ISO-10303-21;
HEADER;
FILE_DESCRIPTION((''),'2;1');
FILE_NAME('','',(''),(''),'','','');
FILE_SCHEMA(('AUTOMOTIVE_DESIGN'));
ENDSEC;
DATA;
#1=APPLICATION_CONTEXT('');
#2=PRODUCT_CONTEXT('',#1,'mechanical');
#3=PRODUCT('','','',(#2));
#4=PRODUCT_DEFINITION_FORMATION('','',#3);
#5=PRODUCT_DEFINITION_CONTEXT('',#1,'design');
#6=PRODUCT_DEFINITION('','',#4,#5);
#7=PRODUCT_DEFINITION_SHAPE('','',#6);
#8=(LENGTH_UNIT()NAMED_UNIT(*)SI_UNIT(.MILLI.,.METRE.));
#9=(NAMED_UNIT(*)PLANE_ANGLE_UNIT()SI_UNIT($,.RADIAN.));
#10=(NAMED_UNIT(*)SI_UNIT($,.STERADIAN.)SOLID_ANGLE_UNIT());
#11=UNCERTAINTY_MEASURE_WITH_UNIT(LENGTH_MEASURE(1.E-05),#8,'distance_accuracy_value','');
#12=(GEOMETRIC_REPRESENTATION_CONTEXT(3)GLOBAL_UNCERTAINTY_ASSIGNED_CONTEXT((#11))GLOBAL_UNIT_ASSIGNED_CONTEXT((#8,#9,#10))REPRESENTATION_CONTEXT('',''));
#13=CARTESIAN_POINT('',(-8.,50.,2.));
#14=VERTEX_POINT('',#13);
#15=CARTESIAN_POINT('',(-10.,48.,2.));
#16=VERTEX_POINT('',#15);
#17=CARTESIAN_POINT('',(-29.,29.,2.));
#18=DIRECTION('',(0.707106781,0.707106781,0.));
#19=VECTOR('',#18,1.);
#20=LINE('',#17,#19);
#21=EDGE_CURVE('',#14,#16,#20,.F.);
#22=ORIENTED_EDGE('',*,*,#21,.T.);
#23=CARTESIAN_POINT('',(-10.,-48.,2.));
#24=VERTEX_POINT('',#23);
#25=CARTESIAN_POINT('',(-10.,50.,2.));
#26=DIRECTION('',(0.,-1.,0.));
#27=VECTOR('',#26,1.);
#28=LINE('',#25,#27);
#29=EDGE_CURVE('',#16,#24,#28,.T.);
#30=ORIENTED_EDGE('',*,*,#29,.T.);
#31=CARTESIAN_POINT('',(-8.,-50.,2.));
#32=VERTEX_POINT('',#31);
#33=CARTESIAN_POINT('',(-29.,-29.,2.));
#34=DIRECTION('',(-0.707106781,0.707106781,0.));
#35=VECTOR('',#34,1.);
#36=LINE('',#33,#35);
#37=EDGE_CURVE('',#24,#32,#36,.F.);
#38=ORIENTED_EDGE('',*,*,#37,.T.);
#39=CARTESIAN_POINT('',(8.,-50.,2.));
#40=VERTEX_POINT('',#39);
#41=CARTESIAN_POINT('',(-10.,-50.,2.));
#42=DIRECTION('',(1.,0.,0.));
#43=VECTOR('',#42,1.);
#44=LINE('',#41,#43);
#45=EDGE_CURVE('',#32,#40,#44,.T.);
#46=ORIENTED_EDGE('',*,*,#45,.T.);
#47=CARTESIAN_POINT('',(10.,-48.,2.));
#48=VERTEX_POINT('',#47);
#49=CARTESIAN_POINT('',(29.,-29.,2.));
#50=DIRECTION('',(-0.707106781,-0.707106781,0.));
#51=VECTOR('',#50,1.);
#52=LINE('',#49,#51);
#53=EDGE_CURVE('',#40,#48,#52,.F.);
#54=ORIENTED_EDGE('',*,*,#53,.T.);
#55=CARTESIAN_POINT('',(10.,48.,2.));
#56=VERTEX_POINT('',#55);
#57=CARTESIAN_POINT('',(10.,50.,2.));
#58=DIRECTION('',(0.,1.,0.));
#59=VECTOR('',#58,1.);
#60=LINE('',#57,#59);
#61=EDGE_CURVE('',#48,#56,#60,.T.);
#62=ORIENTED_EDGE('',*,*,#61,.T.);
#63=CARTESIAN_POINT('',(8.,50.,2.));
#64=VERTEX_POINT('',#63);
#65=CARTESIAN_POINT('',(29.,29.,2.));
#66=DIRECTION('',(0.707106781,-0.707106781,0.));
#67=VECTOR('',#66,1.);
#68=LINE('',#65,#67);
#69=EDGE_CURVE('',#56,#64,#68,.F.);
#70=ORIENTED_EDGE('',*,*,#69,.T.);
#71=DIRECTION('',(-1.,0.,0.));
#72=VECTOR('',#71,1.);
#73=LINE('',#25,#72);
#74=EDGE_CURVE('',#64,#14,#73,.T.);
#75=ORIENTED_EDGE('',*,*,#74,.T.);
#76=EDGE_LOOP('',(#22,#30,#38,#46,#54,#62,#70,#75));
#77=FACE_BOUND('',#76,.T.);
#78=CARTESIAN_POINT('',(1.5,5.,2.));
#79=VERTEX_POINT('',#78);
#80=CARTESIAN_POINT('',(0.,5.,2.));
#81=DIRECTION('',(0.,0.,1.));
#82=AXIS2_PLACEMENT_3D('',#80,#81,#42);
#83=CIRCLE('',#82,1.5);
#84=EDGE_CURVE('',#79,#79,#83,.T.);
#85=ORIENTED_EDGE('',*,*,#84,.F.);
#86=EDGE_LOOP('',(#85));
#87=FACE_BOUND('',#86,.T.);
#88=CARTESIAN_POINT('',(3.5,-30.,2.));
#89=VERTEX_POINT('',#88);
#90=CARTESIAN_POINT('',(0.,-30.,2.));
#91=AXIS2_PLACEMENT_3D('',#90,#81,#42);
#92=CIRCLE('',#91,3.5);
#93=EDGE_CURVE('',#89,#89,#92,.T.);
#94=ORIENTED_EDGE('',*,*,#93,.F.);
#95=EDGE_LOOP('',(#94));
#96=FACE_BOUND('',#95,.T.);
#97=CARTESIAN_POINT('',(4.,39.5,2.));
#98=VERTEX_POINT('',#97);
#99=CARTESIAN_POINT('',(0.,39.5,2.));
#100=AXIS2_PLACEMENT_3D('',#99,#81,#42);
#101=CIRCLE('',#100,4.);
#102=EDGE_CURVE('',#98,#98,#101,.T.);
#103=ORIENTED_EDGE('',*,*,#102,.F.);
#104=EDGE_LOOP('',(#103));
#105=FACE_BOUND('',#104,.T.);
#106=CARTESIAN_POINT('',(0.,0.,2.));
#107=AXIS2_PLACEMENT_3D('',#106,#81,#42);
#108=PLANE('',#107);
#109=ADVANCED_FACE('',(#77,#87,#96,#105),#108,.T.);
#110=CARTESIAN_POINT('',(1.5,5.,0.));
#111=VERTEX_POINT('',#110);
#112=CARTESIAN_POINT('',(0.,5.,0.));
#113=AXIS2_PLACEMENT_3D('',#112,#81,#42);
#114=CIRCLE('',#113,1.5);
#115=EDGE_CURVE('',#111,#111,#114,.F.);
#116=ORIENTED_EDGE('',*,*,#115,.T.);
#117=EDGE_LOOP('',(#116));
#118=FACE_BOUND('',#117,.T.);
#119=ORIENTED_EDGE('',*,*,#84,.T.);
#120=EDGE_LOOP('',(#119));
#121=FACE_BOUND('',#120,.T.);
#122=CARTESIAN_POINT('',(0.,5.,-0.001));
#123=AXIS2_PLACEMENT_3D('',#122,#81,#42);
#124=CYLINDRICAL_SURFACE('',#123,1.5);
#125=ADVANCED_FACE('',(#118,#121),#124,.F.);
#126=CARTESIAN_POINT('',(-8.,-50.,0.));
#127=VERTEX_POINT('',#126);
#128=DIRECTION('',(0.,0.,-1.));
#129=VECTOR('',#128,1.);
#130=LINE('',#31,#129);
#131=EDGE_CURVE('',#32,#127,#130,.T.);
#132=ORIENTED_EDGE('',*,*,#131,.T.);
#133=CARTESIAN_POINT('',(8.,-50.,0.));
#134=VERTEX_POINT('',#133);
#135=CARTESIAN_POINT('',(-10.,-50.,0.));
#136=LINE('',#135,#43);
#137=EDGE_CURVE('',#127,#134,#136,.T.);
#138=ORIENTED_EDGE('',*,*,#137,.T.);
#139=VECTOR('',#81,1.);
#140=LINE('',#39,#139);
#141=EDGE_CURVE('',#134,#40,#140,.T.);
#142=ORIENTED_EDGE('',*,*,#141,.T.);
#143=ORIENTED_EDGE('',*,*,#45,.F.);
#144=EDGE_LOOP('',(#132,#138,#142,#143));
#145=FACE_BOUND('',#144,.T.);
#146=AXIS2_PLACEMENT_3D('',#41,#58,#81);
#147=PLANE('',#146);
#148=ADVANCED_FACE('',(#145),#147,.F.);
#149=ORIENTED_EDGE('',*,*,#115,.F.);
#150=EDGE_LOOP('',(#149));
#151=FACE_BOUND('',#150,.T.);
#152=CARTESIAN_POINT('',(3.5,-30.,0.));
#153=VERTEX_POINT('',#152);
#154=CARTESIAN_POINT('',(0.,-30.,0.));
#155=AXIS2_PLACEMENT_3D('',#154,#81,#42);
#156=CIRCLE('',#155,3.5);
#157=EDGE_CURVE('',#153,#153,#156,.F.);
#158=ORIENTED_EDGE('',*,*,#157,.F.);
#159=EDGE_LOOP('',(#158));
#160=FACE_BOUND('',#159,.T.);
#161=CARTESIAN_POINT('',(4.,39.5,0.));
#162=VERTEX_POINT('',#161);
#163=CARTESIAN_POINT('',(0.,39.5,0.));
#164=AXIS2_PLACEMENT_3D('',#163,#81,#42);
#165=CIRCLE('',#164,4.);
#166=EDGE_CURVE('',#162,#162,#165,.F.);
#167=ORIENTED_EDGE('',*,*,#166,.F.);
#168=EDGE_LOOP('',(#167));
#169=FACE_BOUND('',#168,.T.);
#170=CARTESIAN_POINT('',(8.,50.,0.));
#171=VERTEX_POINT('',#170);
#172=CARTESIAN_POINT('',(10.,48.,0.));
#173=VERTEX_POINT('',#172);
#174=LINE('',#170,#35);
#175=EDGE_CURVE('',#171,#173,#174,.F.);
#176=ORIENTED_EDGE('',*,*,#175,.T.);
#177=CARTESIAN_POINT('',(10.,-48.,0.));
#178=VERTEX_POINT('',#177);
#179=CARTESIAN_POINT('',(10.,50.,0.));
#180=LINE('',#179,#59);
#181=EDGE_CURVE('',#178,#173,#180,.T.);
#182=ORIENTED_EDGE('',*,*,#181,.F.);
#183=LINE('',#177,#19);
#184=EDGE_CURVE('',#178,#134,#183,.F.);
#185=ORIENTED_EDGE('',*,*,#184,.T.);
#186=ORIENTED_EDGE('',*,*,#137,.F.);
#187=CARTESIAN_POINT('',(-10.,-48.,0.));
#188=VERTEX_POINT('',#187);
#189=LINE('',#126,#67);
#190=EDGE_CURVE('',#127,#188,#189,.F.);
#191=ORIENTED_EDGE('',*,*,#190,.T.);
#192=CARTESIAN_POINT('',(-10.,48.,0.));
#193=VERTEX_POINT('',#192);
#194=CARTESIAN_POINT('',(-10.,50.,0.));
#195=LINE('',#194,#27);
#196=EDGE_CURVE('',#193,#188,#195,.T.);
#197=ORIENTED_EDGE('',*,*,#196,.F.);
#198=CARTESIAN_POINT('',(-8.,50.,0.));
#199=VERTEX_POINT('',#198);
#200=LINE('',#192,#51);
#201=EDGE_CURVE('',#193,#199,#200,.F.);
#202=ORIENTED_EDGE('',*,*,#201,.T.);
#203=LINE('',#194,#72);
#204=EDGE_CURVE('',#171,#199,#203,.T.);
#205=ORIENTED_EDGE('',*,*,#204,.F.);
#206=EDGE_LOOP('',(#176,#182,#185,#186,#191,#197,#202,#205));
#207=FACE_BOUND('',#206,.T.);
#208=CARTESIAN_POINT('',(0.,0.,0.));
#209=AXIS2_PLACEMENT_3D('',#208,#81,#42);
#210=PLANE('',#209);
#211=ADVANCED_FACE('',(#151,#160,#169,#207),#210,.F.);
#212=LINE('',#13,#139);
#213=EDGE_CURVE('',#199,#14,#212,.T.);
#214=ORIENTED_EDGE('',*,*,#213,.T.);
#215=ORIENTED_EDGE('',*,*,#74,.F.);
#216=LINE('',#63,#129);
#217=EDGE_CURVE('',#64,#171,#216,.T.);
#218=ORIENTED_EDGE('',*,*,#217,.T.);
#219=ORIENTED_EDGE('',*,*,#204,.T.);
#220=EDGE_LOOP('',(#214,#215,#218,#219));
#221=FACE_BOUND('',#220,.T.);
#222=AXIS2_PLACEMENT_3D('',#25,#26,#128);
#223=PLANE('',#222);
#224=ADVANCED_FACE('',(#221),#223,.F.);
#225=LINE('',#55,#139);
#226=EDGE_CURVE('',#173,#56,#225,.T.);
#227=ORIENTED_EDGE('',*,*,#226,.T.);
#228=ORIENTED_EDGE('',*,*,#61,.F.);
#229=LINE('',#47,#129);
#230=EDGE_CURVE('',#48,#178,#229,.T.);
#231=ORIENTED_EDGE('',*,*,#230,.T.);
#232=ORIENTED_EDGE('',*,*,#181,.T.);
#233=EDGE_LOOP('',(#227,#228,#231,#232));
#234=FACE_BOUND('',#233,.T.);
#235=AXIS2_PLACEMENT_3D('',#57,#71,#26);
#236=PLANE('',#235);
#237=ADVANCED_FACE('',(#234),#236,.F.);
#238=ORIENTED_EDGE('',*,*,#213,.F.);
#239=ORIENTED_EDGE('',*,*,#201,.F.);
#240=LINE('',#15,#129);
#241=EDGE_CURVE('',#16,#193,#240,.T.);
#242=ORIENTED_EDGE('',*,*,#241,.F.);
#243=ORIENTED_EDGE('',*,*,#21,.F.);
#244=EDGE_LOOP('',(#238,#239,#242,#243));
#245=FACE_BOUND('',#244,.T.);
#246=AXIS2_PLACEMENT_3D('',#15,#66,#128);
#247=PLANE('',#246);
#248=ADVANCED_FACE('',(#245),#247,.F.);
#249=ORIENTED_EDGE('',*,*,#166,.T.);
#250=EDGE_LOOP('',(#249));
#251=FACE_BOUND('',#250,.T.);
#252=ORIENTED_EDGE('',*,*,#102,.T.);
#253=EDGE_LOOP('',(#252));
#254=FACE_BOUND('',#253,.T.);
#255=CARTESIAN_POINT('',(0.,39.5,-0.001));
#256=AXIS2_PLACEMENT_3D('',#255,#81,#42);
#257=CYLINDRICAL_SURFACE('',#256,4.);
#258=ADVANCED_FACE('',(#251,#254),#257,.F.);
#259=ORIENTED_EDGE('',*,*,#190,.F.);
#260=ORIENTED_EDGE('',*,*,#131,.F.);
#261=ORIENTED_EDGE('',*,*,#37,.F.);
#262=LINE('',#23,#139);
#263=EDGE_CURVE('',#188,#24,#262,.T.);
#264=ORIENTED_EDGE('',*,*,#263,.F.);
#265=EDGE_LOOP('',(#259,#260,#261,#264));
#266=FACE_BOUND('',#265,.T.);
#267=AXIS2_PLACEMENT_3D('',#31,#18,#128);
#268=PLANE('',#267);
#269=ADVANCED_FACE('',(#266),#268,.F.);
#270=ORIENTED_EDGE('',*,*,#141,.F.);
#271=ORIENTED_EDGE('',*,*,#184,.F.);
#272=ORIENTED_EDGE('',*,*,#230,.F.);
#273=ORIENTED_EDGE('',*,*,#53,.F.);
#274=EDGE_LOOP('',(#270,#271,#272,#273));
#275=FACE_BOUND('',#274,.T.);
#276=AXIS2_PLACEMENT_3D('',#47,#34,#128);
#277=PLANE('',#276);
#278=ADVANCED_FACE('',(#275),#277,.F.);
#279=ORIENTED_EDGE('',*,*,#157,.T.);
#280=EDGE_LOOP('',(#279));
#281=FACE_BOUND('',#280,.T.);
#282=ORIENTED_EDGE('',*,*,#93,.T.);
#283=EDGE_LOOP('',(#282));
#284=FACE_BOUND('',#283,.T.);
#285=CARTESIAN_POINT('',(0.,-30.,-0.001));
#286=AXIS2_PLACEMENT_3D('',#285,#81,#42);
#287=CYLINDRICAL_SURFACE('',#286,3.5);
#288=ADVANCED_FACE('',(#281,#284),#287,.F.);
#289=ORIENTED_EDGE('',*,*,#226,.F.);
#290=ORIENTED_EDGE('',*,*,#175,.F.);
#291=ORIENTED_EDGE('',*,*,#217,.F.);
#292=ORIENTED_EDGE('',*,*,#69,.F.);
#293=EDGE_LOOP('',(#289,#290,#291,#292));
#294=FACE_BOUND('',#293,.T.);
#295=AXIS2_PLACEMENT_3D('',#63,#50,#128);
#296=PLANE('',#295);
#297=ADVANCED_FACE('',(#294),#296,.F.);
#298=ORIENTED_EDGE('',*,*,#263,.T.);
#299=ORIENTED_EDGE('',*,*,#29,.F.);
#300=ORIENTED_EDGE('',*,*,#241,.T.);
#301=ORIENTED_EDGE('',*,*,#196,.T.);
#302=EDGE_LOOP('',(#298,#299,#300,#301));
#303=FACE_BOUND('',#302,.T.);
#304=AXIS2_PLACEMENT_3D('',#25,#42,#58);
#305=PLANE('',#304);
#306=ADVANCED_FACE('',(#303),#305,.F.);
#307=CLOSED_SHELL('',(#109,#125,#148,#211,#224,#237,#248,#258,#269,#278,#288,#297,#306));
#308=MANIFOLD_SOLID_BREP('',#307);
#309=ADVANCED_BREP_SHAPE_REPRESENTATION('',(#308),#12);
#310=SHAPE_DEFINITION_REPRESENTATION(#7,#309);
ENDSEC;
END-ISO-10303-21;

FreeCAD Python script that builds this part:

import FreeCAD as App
import Part
import Sketcher
from FreeCAD import Vector
Q = App.Units.Quantity


def edges_at(feature, points):
    """Names of the edges that pass closest to the given points."""
    edges = feature.Shape.Edges
    near = lambda p: min(range(len(edges)), key=lambda i: edges[i].distToShape(Part.Vertex(*p))[0])
    return sorted({f"Edge{near(p) + 1}" for p in points})

doc = App.newDocument("Part")
body = doc.addObject("PartDesign::Body", "Body")

# Sketch on XY plane
sketch1 = body.newObject("Sketcher::SketchObject", "Sketch")
sketch1.AttachmentSupport = (doc.getObject("XY_Plane"), [""])
sketch1.MapMode = "FlatFace"
sketch1.addGeometry(Part.LineSegment(Vector(-10, 50, 0), Vector(-10, -50, 0)), False)
sketch1.addGeometry(Part.LineSegment(Vector(-10, -50, 0), Vector(10, -50, 0)), False)
sketch1.addGeometry(Part.LineSegment(Vector(10, -50, 0), Vector(10, 50, 0)), False)
sketch1.addGeometry(Part.LineSegment(Vector(10, 50, 0), Vector(-10, 50, 0)), False)
sketch1.addConstraint(Sketcher.Constraint("Coincident", 0, 2, 1, 1))
sketch1.addConstraint(Sketcher.Constraint("Coincident", 1, 2, 2, 1))
sketch1.addConstraint(Sketcher.Constraint("Coincident", 2, 2, 3, 1))
sketch1.addConstraint(Sketcher.Constraint("Coincident", 3, 2, 0, 1))
sketch1.addConstraint(Sketcher.Constraint("Vertical", 0))
sketch1.addConstraint(Sketcher.Constraint("Horizontal", 1))
sketch1.addConstraint(Sketcher.Constraint("Vertical", 2))
sketch1.addConstraint(Sketcher.Constraint("Horizontal", 3))
sketch1.addConstraint(Sketcher.Constraint("Symmetric", 0, 2, 2, 2, -1, 1))
sketch1.addConstraint(Sketcher.Constraint("DistanceX", 1, 1, 1, 2, Q("20 mm")))
sketch1.addConstraint(Sketcher.Constraint("DistanceY", 0, 2, 0, 1, Q("100 mm")))
pad1 = body.newObject("PartDesign::Pad", "Pad")
pad1.Profile = sketch1
pad1.Length = 2

# Sketch on XY plane
sketch2 = body.newObject("Sketcher::SketchObject", "Sketch001")
sketch2.AttachmentSupport = (doc.getObject("XY_Plane"), [""])
sketch2.MapMode = "FlatFace"
sketch2.AttachmentOffset = App.Placement(Vector(0, 0, 2), App.Rotation())
sketch2.addGeometry(Part.Circle(Vector(0, 39.5, 0), Vector(0, 0, 1), 4), False)
sketch2.addConstraint(Sketcher.Constraint("PointOnObject", 0, 3, -2))
sketch2.addConstraint(Sketcher.Constraint("Diameter", 0, Q("8 mm")))
sketch2.addConstraint(Sketcher.Constraint("DistanceY", -1, 1, 0, 3, Q("39.5 mm")))
pocket1 = body.newObject("PartDesign::Pocket", "Pocket")
pocket1.Profile = sketch2
pocket1.Type = "UpToFirst"

# Sketch on XY plane
sketch3 = body.newObject("Sketcher::SketchObject", "Sketch002")
sketch3.AttachmentSupport = (doc.getObject("XY_Plane"), [""])
sketch3.MapMode = "FlatFace"
sketch3.AttachmentOffset = App.Placement(Vector(0, 0, 2), App.Rotation())
sketch3.addGeometry(Part.Circle(Vector(0, 5, 0), Vector(0, 0, 1), 1.5), False)
sketch3.addConstraint(Sketcher.Constraint("PointOnObject", 0, 3, -2))
sketch3.addConstraint(Sketcher.Constraint("Diameter", 0, Q("3 mm")))
sketch3.addConstraint(Sketcher.Constraint("DistanceY", -1, 1, 0, 3, Q("5 mm")))
pocket2 = body.newObject("PartDesign::Pocket", "Pocket001")
pocket2.Profile = sketch3
pocket2.Type = "UpToFirst"

# Sketch on XY plane
sketch4 = body.newObject("Sketcher::SketchObject", "Sketch003")
sketch4.AttachmentSupport = (doc.getObject("XY_Plane"), [""])
sketch4.MapMode = "FlatFace"
sketch4.AttachmentOffset = App.Placement(Vector(0, 0, 2), App.Rotation())
sketch4.addGeometry(Part.Circle(Vector(0, -30, 0), Vector(0, 0, 1), 3.5), False)
sketch4.addConstraint(Sketcher.Constraint("PointOnObject", 0, 3, -2))
sketch4.addConstraint(Sketcher.Constraint("Diameter", 0, Q("7 mm")))
sketch4.addConstraint(Sketcher.Constraint("DistanceY", 0, 3, -1, 1, Q("30 mm")))
pocket3 = body.newObject("PartDesign::Pocket", "Pocket002")
pocket3.Profile = sketch4
pocket3.Type = "UpToFirst"
doc.recompute()

chamfer = body.newObject("PartDesign::Chamfer", "Chamfer")
chamfer.Base = (pocket3, edges_at(pocket3, [
    (10, -50, 1),
    (-10, -50, 1),
    (-10, 50, 1),
    (10, 50, 1),
]))
chamfer.Size = 2

doc.recompute()
